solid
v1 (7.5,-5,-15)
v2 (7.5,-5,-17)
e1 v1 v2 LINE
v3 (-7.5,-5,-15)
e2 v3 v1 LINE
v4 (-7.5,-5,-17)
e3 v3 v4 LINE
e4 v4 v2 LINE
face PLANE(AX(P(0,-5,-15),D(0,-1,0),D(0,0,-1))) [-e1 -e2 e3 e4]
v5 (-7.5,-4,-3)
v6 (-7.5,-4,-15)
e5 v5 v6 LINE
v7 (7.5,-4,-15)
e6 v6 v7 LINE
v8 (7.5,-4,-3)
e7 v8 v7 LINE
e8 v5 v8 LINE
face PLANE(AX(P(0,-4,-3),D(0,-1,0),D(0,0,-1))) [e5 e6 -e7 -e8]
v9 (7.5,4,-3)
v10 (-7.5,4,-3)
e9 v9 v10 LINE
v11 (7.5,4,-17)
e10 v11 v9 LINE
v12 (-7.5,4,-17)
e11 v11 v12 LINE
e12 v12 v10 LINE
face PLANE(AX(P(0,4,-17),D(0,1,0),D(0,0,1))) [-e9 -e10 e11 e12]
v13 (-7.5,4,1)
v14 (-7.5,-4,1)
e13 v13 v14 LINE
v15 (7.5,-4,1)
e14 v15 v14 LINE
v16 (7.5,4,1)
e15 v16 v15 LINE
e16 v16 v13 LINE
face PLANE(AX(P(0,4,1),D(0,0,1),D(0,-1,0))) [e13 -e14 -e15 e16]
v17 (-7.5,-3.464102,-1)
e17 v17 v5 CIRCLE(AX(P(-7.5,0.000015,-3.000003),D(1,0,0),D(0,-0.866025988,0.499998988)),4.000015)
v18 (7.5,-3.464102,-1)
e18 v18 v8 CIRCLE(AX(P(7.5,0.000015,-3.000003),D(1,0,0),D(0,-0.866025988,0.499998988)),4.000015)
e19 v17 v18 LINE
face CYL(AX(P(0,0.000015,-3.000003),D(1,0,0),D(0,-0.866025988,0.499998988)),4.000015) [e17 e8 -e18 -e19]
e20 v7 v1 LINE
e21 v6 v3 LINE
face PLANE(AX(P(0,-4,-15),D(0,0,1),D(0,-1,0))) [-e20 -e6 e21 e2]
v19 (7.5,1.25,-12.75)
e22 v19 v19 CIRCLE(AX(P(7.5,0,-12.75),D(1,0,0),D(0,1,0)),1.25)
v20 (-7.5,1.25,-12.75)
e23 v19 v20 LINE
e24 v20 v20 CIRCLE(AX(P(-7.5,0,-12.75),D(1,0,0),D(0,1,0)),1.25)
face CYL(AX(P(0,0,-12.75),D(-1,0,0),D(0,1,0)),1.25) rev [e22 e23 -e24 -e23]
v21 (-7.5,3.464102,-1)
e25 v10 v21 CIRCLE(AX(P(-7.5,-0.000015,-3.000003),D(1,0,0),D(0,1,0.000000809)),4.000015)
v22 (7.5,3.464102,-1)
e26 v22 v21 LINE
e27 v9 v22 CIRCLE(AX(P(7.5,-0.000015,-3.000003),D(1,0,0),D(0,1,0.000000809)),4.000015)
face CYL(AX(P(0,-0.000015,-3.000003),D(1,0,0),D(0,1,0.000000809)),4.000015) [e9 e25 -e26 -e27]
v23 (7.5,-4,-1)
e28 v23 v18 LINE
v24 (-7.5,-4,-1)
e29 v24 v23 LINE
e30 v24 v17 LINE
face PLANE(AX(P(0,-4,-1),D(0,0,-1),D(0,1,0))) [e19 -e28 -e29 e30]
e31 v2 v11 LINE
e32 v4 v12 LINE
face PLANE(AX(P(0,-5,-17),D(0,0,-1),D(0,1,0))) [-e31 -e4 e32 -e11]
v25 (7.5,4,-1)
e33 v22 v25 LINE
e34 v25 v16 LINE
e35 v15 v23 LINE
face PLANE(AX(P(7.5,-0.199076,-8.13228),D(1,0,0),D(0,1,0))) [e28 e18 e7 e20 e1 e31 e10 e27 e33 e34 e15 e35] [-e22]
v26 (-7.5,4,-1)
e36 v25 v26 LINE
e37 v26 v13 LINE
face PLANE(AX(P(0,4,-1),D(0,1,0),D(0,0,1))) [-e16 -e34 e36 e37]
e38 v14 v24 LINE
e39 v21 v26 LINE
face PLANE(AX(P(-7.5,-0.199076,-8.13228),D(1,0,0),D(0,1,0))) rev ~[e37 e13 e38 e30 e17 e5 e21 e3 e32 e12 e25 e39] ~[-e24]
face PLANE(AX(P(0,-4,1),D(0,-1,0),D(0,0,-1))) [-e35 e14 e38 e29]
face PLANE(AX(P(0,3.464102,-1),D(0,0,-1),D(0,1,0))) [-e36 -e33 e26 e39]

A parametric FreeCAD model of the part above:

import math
import FreeCAD as App
import Part
import Sketcher
from FreeCAD import Vector

doc = App.newDocument("Part")
body = doc.addObject("PartDesign::Body", "Body")

sketch1 = body.newObject("Sketcher::SketchObject", "Sketch")
sketch1.AttachmentSupport = (doc.getObject("YZ_Plane"), [""])
sketch1.MapMode = "FlatFace"
sketch1.addGeometry(Part.LineSegment(Vector(-4, 1, 0), Vector(-4, -1, 0)), False)
sketch1.addGeometry(Part.LineSegment(Vector(-4, -1, 0), Vector(-3.464102, -1, 0)), False)
sketch1.addGeometry(Part.ArcOfCircle(Part.Circle(Vector(0.000015, -3.000003, 0), Vector(0, 0, 1), 4.000015), math.radians(150.000067), math.radians(179.999954)), False)
sketch1.addGeometry(Part.LineSegment(Vector(-4, -3, 0), Vector(-4, -15, 0)), False)
sketch1.addGeometry(Part.LineSegment(Vector(-4, -15, 0), Vector(-5, -15, 0)), False)
sketch1.addGeometry(Part.LineSegment(Vector(-5, -15, 0), Vector(-5, -17, 0)), False)
sketch1.addGeometry(Part.LineSegment(Vector(-5, -17, 0), Vector(4, -17, 0)), False)
sketch1.addGeometry(Part.LineSegment(Vector(4, -17, 0), Vector(4, -3, 0)), False)
sketch1.addGeometry(Part.ArcOfCircle(Part.Circle(Vector(-0.000015, -3.000003, 0), Vector(0, 0, 1), 4.000015), math.radians(0.000046), math.radians(29.999933)), False)
sketch1.addGeometry(Part.LineSegment(Vector(3.464102, -1, 0), Vector(4, -1, 0)), False)
sketch1.addGeometry(Part.LineSegment(Vector(4, -1, 0), Vector(4, 1, 0)), False)
sketch1.addGeometry(Part.LineSegment(Vector(4, 1, 0), Vector(-4, 1, 0)), False)
sketch1.addGeometry(Part.Circle(Vector(0, -12.75, 0), Vector(0, 0, 1), 1.25), False)
sketch1.addConstraint(Sketcher.Constraint("Coincident", 0, 2, 1, 1))
sketch1.addConstraint(Sketcher.Constraint("Coincident", 1, 2, 2, 1))
sketch1.addConstraint(Sketcher.Constraint("Tangent", 2, 2, 3, 1))
sketch1.addConstraint(Sketcher.Constraint("Coincident", 3, 2, 4, 1))
sketch1.addConstraint(Sketcher.Constraint("Coincident", 4, 2, 5, 1))
sketch1.addConstraint(Sketcher.Constraint("Coincident", 5, 2, 6, 1))
sketch1.addConstraint(Sketcher.Constraint("Coincident", 6, 2, 7, 1))
sketch1.addConstraint(Sketcher.Constraint("Tangent", 7, 2, 8, 1))
sketch1.addConstraint(Sketcher.Constraint("Coincident", 8, 2, 9, 1))
sketch1.addConstraint(Sketcher.Constraint("Coincident", 9, 2, 10, 1))
sketch1.addConstraint(Sketcher.Constraint("Coincident", 10, 2, 11, 1))
sketch1.addConstraint(Sketcher.Constraint("Coincident", 11, 2, 0, 1))
sketch1.addConstraint(Sketcher.Constraint("Vertical", 0))
sketch1.addConstraint(Sketcher.Constraint("Horizontal", 1))
sketch1.addConstraint(Sketcher.Constraint("Vertical", 3))
sketch1.addConstraint(Sketcher.Constraint("Horizontal", 4))
sketch1.addConstraint(Sketcher.Constraint("Vertical", 5))
sketch1.addConstraint(Sketcher.Constraint("Horizontal", 6))
sketch1.addConstraint(Sketcher.Constraint("Vertical", 7))
sketch1.addConstraint(Sketcher.Constraint("Horizontal", 9))
sketch1.addConstraint(Sketcher.Constraint("Vertical", 10))
sketch1.addConstraint(Sketcher.Constraint("Horizontal", 11))
sketch1.addConstraint(Sketcher.Constraint("Equal", 2, 8))
sketch1.addConstraint(Sketcher.Constraint("Symmetric", 0, 2, 10, 2, -1, 1))
sketch1.addConstraint(Sketcher.Constraint("Symmetric", 2, 3, 8, 3, -2))
sketch1.addConstraint(Sketcher.Constraint("PointOnObject", 12, 3, -2))
sketch1.addConstraint(Sketcher.Constraint("Horizontal", 1, 2, 8, 2))
sketch1.addConstraint(Sketcher.Constraint("Vertical", 0, 2, 2, 2))
sketch1.addConstraint(Sketcher.Constraint("Equal", 0, 5))
sketch1.addConstraint(Sketcher.Constraint("Diameter", 12, 2.5))
sketch1.addConstraint(Sketcher.Constraint("DistanceX", 4, 2, 4, 1, 1.0))
sketch1.addConstraint(Sketcher.Constraint("DistanceX", 6, 1, 6, 2, 9.0))
sketch1.addConstraint(Sketcher.Constraint("DistanceY", 0, 2, 0, 1, 2.0))
sketch1.addConstraint(Sketcher.Constraint("DistanceY", 3, 2, 3, 1, 12.0))
sketch1.addConstraint(Sketcher.Constraint("DistanceY", 2, 2, -1, 1, 3.0))
sketch1.addConstraint(Sketcher.Constraint("DistanceY", 12, 3, -1, 1, 12.75))
sketch1.addConstraint(Sketcher.Constraint("Radius", 2, 4.000015))
pad1 = body.newObject("PartDesign::Pad", "Pad")
pad1.Profile = sketch1
pad1.Length = 15
pad1.Midplane = True

doc.recompute()
